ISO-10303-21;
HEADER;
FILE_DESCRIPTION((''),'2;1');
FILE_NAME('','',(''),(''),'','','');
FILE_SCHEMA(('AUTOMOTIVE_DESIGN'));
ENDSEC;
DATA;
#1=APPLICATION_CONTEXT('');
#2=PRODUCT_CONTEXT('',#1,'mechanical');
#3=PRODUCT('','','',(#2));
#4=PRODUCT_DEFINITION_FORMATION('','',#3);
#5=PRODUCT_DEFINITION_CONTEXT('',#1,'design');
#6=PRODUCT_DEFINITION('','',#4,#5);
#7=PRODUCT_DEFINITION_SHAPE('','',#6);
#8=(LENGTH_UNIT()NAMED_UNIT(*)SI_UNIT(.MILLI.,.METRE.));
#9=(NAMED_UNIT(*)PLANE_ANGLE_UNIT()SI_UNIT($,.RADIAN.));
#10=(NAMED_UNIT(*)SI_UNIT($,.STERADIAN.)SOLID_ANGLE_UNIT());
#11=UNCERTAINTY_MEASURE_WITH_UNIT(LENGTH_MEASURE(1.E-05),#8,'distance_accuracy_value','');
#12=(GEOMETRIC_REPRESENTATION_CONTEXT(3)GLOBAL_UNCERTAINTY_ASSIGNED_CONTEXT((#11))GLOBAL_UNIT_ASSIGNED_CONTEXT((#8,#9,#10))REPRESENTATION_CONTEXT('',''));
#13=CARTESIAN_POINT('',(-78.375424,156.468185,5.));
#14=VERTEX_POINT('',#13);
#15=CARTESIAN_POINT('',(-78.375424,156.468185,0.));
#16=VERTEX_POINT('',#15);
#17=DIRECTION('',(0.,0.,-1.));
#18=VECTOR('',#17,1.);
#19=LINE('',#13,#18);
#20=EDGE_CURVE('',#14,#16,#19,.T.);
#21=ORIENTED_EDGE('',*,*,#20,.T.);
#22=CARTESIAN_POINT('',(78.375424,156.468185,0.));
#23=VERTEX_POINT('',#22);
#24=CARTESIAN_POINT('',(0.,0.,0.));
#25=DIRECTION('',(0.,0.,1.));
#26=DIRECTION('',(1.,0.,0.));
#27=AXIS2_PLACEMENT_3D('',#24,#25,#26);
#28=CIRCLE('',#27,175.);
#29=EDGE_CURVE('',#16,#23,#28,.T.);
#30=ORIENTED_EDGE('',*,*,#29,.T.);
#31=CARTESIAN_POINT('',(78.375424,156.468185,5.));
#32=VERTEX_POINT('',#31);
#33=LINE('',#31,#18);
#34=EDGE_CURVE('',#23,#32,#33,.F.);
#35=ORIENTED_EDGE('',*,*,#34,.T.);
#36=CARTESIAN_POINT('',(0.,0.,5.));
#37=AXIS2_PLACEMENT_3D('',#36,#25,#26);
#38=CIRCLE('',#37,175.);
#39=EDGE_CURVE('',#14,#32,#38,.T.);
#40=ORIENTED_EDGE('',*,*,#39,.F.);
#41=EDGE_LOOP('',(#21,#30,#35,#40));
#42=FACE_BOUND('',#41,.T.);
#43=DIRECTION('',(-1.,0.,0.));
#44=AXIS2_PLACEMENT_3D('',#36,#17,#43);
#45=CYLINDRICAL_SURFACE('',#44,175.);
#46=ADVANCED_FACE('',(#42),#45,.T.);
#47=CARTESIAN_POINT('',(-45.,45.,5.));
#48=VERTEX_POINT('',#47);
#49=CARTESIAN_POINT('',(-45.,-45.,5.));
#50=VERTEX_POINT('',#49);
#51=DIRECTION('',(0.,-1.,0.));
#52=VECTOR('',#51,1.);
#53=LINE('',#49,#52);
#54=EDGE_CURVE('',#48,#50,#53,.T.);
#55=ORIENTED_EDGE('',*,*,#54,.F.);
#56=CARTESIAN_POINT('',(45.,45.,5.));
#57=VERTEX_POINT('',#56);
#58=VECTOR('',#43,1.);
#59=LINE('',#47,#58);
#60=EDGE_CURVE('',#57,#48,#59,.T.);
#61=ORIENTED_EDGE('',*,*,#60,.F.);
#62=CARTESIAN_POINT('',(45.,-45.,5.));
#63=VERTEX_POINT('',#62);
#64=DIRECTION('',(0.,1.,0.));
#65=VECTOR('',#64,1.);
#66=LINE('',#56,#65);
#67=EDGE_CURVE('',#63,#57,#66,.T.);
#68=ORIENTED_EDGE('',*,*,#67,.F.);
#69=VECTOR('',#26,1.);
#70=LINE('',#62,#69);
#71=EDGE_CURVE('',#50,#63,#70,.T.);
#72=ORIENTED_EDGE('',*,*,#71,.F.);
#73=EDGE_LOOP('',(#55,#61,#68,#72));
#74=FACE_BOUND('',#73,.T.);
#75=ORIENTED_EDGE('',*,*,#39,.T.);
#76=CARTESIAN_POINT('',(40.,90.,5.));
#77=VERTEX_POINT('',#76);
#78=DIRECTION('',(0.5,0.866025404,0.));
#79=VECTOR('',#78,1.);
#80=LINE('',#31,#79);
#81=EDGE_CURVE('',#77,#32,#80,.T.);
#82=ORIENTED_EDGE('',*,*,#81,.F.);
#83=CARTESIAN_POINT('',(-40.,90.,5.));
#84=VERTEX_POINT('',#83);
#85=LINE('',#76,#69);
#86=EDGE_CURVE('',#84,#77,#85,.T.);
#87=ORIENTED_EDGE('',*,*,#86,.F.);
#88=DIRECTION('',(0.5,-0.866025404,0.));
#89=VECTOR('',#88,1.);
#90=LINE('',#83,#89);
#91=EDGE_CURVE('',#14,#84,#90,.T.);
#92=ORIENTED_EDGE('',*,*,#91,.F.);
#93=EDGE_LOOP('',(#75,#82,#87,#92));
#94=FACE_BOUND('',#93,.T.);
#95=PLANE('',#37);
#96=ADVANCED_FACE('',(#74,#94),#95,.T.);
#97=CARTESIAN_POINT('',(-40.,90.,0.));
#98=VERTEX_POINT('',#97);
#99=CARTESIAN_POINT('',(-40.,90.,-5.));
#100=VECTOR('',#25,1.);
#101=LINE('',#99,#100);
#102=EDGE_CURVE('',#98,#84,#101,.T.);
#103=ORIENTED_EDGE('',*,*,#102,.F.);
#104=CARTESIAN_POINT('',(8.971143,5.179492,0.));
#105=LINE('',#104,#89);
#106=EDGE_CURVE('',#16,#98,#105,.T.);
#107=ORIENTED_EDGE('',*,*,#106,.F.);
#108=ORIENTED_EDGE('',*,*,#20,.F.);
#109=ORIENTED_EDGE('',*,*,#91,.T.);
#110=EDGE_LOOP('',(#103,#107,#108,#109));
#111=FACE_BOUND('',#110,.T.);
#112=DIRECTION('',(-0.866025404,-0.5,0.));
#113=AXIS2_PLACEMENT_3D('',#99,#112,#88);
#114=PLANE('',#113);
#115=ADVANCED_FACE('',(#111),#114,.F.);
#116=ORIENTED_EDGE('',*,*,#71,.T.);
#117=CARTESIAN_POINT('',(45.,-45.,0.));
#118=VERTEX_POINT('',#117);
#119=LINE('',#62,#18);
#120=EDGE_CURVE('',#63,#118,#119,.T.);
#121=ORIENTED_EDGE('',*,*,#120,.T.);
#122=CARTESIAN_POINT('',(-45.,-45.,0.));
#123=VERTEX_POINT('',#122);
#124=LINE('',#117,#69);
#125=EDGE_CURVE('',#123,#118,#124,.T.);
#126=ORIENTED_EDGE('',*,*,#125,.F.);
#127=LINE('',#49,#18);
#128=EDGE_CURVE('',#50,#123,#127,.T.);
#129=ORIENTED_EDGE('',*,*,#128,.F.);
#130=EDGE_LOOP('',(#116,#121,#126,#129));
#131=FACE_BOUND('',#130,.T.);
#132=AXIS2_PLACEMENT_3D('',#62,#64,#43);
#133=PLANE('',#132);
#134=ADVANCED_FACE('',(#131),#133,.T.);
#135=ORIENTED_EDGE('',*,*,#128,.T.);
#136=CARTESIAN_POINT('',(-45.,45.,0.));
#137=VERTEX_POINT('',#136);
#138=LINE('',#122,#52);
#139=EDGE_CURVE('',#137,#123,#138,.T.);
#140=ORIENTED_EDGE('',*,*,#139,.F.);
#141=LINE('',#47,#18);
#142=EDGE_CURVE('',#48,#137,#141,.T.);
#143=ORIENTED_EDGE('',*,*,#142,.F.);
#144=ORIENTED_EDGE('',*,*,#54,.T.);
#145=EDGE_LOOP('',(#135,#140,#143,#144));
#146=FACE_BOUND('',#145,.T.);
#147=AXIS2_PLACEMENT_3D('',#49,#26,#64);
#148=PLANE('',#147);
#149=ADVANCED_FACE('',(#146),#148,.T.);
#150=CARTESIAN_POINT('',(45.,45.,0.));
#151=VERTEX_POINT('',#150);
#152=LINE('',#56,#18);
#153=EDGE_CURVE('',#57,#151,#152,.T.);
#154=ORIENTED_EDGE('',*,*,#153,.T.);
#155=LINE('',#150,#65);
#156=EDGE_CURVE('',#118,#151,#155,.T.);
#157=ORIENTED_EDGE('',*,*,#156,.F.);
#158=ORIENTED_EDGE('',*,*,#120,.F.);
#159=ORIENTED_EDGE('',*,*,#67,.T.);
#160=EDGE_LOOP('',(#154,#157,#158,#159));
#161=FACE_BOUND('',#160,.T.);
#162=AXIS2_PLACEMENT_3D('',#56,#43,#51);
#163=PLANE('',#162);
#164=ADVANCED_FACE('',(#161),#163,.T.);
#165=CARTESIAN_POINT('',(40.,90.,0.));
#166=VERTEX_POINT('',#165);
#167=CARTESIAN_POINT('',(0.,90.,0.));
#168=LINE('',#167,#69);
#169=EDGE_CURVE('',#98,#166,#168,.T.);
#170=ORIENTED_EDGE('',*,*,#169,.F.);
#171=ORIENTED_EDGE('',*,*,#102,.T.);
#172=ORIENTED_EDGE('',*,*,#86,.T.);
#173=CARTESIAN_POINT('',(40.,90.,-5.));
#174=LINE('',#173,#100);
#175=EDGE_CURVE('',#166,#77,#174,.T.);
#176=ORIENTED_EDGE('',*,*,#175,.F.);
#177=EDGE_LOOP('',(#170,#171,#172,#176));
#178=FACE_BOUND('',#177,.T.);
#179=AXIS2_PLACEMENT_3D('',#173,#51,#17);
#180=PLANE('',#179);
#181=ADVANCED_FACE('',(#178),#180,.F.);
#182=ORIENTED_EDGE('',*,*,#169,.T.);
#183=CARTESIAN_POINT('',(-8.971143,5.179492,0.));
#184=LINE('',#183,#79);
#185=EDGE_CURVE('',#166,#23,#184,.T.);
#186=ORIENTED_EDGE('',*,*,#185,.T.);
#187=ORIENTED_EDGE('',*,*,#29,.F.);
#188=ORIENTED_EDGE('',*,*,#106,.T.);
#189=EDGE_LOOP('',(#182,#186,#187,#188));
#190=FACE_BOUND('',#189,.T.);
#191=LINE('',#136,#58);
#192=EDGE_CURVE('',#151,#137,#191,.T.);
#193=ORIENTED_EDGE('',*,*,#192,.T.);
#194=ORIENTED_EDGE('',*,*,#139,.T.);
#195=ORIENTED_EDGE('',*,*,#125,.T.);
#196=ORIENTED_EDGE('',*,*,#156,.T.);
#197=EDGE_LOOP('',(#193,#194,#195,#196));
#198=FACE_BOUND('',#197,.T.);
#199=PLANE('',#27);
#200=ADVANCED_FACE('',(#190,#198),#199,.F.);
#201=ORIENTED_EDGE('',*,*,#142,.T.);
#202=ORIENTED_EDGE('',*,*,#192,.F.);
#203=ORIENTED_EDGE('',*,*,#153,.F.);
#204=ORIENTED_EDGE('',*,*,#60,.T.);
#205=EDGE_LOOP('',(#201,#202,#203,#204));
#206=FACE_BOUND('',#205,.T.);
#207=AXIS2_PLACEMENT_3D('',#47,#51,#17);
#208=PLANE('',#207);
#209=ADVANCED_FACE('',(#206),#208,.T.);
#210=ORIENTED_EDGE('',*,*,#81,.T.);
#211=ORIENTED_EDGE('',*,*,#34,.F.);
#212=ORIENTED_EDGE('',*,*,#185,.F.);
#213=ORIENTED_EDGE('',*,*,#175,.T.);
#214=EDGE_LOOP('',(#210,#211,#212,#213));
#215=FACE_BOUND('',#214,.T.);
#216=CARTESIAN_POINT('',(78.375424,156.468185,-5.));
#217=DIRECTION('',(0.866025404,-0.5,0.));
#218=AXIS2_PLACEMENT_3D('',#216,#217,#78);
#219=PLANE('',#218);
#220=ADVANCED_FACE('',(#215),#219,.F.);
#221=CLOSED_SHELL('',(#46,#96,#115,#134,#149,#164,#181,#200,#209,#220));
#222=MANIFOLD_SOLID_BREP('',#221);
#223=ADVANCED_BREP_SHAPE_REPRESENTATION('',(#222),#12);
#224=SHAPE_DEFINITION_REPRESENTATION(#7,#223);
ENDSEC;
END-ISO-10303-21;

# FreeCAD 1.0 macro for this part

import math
import FreeCAD as App
import Part
import Sketcher
Q = App.Units.Quantity

doc = App.newDocument("Part")
body = doc.addObject("PartDesign::Body", "Body")

sketch1 = doc.addObject("Sketcher::SketchObject", "Sketch")
body.addObject(sketch1)
sketch1.AttachmentSupport = (doc.XY_Plane, [""])
sketch1.MapMode = "FlatFace"
sketch1.addGeometry(Part.Circle(App.Vector(0, 0, 0), App.Vector(0, 0, 1), 175), False)
sketch1.addGeometry(Part.LineSegment(App.Vector(45, -45, 0), App.Vector(-45, -45, 0)), False)
sketch1.addGeometry(Part.LineSegment(App.Vector(-45, -45, 0), App.Vector(-45, 45, 0)), False)
sketch1.addGeometry(Part.LineSegment(App.Vector(-45, 45, 0), App.Vector(45, 45, 0)), False)
sketch1.addGeometry(Part.LineSegment(App.Vector(45, 45, 0), App.Vector(45, -45, 0)), False)
sketch1.addConstraint(Sketcher.Constraint("Coincident", 1, 2, 2, 1))
sketch1.addConstraint(Sketcher.Constraint("Coincident", 2, 2, 3, 1))
sketch1.addConstraint(Sketcher.Constraint("Coincident", 3, 2, 4, 1))
sketch1.addConstraint(Sketcher.Constraint("Coincident", 4, 2, 1, 1))
sketch1.addConstraint(Sketcher.Constraint("Horizontal", 1))
sketch1.addConstraint(Sketcher.Constraint("Vertical", 2))
sketch1.addConstraint(Sketcher.Constraint("Horizontal", 3))
sketch1.addConstraint(Sketcher.Constraint("Vertical", 4))
sketch1.addConstraint(Sketcher.Constraint("Coincident", 0, 3, -1, 1))
sketch1.addConstraint(Sketcher.Constraint("Symmetric", 1, 2, 3, 2, -1, 1))
sketch1.addConstraint(Sketcher.Constraint("Equal", 3, 2))
sketch1.addConstraint(Sketcher.Constraint("Diameter", 0, Q("350 mm")))
sketch1.addConstraint(Sketcher.Constraint("DistanceX", 1, 2, 1, 1, Q("90 mm")))
pad1 = doc.addObject("PartDesign::Pad", "Pad")
body.addObject(pad1)
pad1.Profile = sketch1
pad1.Length = 5

sketch2 = doc.addObject("Sketcher::SketchObject", "Sketch001")
body.addObject(sketch2)
sketch2.AttachmentSupport = (doc.XY_Plane, [""])
sketch2.MapMode = "FlatFace"
sketch2.AttachmentOffset = App.Placement(App.Vector(0, 0, 5), App.Rotation())
sketch2.addGeometry(Part.LineSegment(App.Vector(40, 90, 0), App.Vector(78, 156, 0)), False)
sketch2.addGeometry(Part.ArcOfCircle(Part.Circle(App.Vector(0, 21, 0), App.Vector(0, 0, 1), 157), math.radians(60), math.radians(120)), False)
sketch2.addGeometry(Part.LineSegment(App.Vector(-78, 156, 0), App.Vector(-40, 90, 0)), False)
sketch2.addGeometry(Part.LineSegment(App.Vector(-40, 90, 0), App.Vector(40, 90, 0)), False)
sketch2.addConstraint(Sketcher.Constraint("Coincident", 0, 2, 1, 1))
sketch2.addConstraint(Sketcher.Constraint("Coincident", 1, 2, 2, 1))
sketch2.addConstraint(Sketcher.Constraint("Coincident", 2, 2, 3, 1))
sketch2.addConstraint(Sketcher.Constraint("Coincident", 3, 2, 0, 1))
sketch2.addConstraint(Sketcher.Constraint("Horizontal", 3))
sketch2.addConstraint(Sketcher.Constraint("Symmetric", 0, 2, 1, 2, -2))
sketch2.addConstraint(Sketcher.Constraint("Equal", 0, 2))
sketch2.addConstraint(Sketcher.Constraint("DistanceX", 3, 1, 3, 2, Q("80 mm")))
sketch2.addConstraint(Sketcher.Constraint("Angle", 0, Q("60 deg")))
sketch2.addConstraint(Sketcher.Constraint("DistanceY", -1, 1, 2, 2, Q("90 mm")))
sketch2.addConstraint(Sketcher.Constraint("Radius", 1, Q("156.750849 mm")))
sketch2.addConstraint(Sketcher.Constraint("Distance", 0, Q("76.750849 mm")))
pocket1 = doc.addObject("PartDesign::Pocket", "Pocket")
body.addObject(pocket1)
pocket1.Profile = sketch2
pocket1.Length = 10

doc.recompute()
